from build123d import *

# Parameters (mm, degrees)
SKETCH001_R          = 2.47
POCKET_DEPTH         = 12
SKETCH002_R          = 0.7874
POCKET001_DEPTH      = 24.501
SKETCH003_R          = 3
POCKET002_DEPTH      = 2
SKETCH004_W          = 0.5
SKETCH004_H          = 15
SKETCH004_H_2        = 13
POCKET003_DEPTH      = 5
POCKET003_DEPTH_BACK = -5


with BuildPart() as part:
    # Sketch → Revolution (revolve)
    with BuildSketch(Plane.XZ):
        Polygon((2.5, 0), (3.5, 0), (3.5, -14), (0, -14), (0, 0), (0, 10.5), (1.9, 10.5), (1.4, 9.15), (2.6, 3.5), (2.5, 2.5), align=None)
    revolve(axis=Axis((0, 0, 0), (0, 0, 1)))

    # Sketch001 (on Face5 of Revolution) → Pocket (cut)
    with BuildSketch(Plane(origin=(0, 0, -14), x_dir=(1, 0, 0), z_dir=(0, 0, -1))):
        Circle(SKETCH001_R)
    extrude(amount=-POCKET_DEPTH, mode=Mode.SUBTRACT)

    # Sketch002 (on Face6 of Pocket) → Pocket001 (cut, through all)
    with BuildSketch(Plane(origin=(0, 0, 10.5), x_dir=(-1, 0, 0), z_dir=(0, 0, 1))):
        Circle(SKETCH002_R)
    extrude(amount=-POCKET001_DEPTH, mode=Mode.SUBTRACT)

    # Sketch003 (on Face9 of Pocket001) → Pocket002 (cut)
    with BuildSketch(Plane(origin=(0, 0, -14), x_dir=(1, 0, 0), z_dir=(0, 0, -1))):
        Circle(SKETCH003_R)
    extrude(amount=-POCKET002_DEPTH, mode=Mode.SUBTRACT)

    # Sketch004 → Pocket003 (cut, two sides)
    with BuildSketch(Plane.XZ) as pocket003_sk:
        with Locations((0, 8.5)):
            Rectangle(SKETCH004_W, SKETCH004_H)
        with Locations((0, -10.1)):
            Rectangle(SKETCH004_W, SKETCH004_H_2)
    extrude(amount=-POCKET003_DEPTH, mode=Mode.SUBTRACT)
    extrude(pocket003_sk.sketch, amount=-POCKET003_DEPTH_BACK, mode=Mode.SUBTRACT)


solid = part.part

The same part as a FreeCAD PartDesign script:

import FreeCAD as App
import Part
import Sketcher

V = App.Vector

doc = App.newDocument("Part")
body = doc.addObject("PartDesign::Body", "Body")

# Sketch on XZ plane
sketch1 = body.newObject("Sketcher::SketchObject", "Sketch")
sketch1.AttachmentSupport = (doc.getObject("XZ_Plane"), [""])
sketch1.MapMode = "FlatFace"
sketch1.addGeometry([
    Part.LineSegment(V(3.5, 0, 0), V(2.5, 0, 0)),  # 0
    Part.LineSegment(V(2.5, 0, 0), V(2.5, 2.5, 0)),  # 1
    Part.LineSegment(V(2.5, 2.5, 0), V(2.6, 3.5, 0)),  # 2
    Part.LineSegment(V(2.6, 3.5, 0), V(1.4, 9.15, 0)),  # 3
    Part.LineSegment(V(1.4, 9.15, 0), V(1.9, 10.5, 0)),  # 4
    Part.LineSegment(V(1.9, 10.5, 0), V(0, 10.5, 0)),  # 5
    Part.LineSegment(V(0, 10.5, 0), V(0, -14, 0)),  # 6
    Part.LineSegment(V(0, -14, 0), V(3.5, -14, 0)),  # 7
    Part.LineSegment(V(3.5, -14, 0), V(3.5, 0, 0)),  # 8
], False)
sketch1.addConstraint([
    Sketcher.Constraint("Coincident", 0, 2, 1, 1),
    Sketcher.Constraint("Coincident", 1, 2, 2, 1),
    Sketcher.Constraint("Coincident", 2, 2, 3, 1),
    Sketcher.Constraint("Coincident", 3, 2, 4, 1),
    Sketcher.Constraint("Coincident", 4, 2, 5, 1),
    Sketcher.Constraint("Coincident", 5, 2, 6, 1),
    Sketcher.Constraint("Coincident", 6, 2, 7, 1),
    Sketcher.Constraint("Coincident", 7, 2, 8, 1),
    Sketcher.Constraint("Coincident", 8, 2, 0, 1),
    Sketcher.Constraint("Horizontal", 0),
    Sketcher.Constraint("Vertical", 1),
    Sketcher.Constraint("Horizontal", 5),
    Sketcher.Constraint("Vertical", 6),
    Sketcher.Constraint("Horizontal", 7),
    Sketcher.Constraint("Vertical", 8),
    Sketcher.Constraint("PointOnObject", 0, 2, -1),
    Sketcher.Constraint("PointOnObject", 5, 2, -2),
    Sketcher.Constraint("DistanceX", 0, 2, 0, 1, 1.0),
    Sketcher.Constraint("DistanceY", 8, 1, 8, 2, 14.0),
    Sketcher.Constraint("DistanceX", 5, 2, 5, 1, 1.9),
    Sketcher.Constraint("DistanceX", 7, 1, 7, 2, 3.5),
    Sketcher.Constraint("DistanceY", 1, 1, 1, 2, 2.5),
    Sketcher.Constraint("DistanceY", 6, 2, 6, 1, 24.5),
    Sketcher.Constraint("DistanceY", 1, 2, 2, 2, 1.0),
    Sketcher.Constraint("DistanceX", -1, 1, 2, 2, 2.6),
    Sketcher.Constraint("DistanceX", -1, 1, 3, 2, 1.4),
    Sketcher.Constraint("DistanceY", -1, 1, 3, 2, 9.15),
])
revolution = body.newObject("PartDesign::Revolution", "Revolution")
revolution.Profile = sketch1
revolution.ReferenceAxis = (sketch1, ["V_Axis"])
revolution.Angle = 360

# Sketch on XY plane
sketch2 = body.newObject("Sketcher::SketchObject", "Sketch001")
sketch2.AttachmentSupport = (doc.getObject("XY_Plane"), [""])
sketch2.MapMode = "FlatFace"
sketch2.AttachmentOffset = App.Placement(V(0, 0, -14), App.Rotation())
sketch2.addGeometry(Part.Circle(V(0, 0, 0), V(0, 0, 1), 2.47), False)
sketch2.addConstraint([
    Sketcher.Constraint("Coincident", 0, 3, -1, 1),
    Sketcher.Constraint("Diameter", 0, 4.94),
])
pocket1 = body.newObject("PartDesign::Pocket", "Pocket")
pocket1.Profile = sketch2
pocket1.Length = 12
pocket1.Reversed = True

# Sketch on XY plane
sketch3 = body.newObject("Sketcher::SketchObject", "Sketch002")
sketch3.AttachmentSupport = (doc.getObject("XY_Plane"), [""])
sketch3.MapMode = "FlatFace"
sketch3.AttachmentOffset = App.Placement(V(0, 0, 10.5), App.Rotation())
sketch3.addGeometry(Part.Circle(V(0, 0, 0), V(0, 0, 1), 0.7874), False)
sketch3.addConstraint([
    Sketcher.Constraint("Coincident", 0, 3, -1, 1),
    Sketcher.Constraint("Diameter", 0, 1.5748),
])
pocket2 = body.newObject("PartDesign::Pocket", "Pocket001")
pocket2.Profile = sketch3
pocket2.Type = "ThroughAll"

# Sketch on XY plane
sketch4 = body.newObject("Sketcher::SketchObject", "Sketch003")
sketch4.AttachmentSupport = (doc.getObject("XY_Plane"), [""])
sketch4.MapMode = "FlatFace"
sketch4.AttachmentOffset = App.Placement(V(0, 0, -14), App.Rotation())
sketch4.addGeometry(Part.Circle(V(0, 0, 0), V(0, 0, 1), 3), False)
sketch4.addConstraint([
    Sketcher.Constraint("Coincident", 0, 3, -1, 1),
    Sketcher.Constraint("Diameter", 0, 6.0),
])
pocket3 = body.newObject("PartDesign::Pocket", "Pocket002")
pocket3.Profile = sketch4
pocket3.Length = 2
pocket3.Reversed = True

# Sketch on XZ plane
sketch5 = body.newObject("Sketcher::SketchObject", "Sketch004")
sketch5.AttachmentSupport = (doc.getObject("XZ_Plane"), [""])
sketch5.MapMode = "FlatFace"
sketch5.addGeometry([
    Part.LineSegment(V(-0.25, 16, 0), V(-0.25, 1, 0)),  # 0
    Part.LineSegment(V(-0.25, 1, 0), V(0.25, 1, 0)),  # 1
    Part.LineSegment(V(0.25, 1, 0), V(0.25, 16, 0)),  # 2
    Part.LineSegment(V(0.25, 16, 0), V(-0.25, 16, 0)),  # 3
    Part.LineSegment(V(-0.25, -3.6, 0), V(-0.25, -16.6, 0)),  # 4
    Part.LineSegment(V(-0.25, -16.6, 0), V(0.25, -16.6, 0)),  # 5
    Part.LineSegment(V(0.25, -16.6, 0), V(0.25, -3.6, 0)),  # 6
    Part.LineSegment(V(0.25, -3.6, 0), V(-0.25, -3.6, 0)),  # 7
], False)
sketch5.addConstraint([
    Sketcher.Constraint("Coincident", 0, 2, 1, 1),
    Sketcher.Constraint("Coincident", 1, 2, 2, 1),
    Sketcher.Constraint("Coincident", 2, 2, 3, 1),
    Sketcher.Constraint("Coincident", 3, 2, 0, 1),
    Sketcher.Constraint("Coincident", 4, 2, 5, 1),
    Sketcher.Constraint("Coincident", 5, 2, 6, 1),
    Sketcher.Constraint("Coincident", 6, 2, 7, 1),
    Sketcher.Constraint("Coincident", 7, 2, 4, 1),
    Sketcher.Constraint("Vertical", 0),
    Sketcher.Constraint("Horizontal", 1),
    Sketcher.Constraint("Vertical", 2),
    Sketcher.Constraint("Horizontal", 3),
    Sketcher.Constraint("Vertical", 4),
    Sketcher.Constraint("Horizontal", 5),
    Sketcher.Constraint("Vertical", 6),
    Sketcher.Constraint("Horizontal", 7),
    Sketcher.Constraint("Vertical", 3, 2, 4, 2),
    Sketcher.Constraint("Vertical", 2, 2, 5, 2),
    Sketcher.Constraint("DistanceY", 0, 2, 0, 1, 15.0),
    Sketcher.Constraint("DistanceY", 4, 2, 4, 1, 13.0),
    Sketcher.Constraint("DistanceX", 1, 1, 1, 2, 0.5),
    Sketcher.Constraint("DistanceY", -1, 1, 0, 2, 1.0),
    Sketcher.Constraint("DistanceY", 4, 2, -1, 1, 16.6),
    Sketcher.Constraint("DistanceX", 0, 2, -1, 1, 0.25),
])
pocket4 = body.newObject("PartDesign::Pocket", "Pocket003")
pocket4.Profile = sketch5
pocket4.Type = "ThroughAll"
pocket4.Midplane = True

doc.recompute()
